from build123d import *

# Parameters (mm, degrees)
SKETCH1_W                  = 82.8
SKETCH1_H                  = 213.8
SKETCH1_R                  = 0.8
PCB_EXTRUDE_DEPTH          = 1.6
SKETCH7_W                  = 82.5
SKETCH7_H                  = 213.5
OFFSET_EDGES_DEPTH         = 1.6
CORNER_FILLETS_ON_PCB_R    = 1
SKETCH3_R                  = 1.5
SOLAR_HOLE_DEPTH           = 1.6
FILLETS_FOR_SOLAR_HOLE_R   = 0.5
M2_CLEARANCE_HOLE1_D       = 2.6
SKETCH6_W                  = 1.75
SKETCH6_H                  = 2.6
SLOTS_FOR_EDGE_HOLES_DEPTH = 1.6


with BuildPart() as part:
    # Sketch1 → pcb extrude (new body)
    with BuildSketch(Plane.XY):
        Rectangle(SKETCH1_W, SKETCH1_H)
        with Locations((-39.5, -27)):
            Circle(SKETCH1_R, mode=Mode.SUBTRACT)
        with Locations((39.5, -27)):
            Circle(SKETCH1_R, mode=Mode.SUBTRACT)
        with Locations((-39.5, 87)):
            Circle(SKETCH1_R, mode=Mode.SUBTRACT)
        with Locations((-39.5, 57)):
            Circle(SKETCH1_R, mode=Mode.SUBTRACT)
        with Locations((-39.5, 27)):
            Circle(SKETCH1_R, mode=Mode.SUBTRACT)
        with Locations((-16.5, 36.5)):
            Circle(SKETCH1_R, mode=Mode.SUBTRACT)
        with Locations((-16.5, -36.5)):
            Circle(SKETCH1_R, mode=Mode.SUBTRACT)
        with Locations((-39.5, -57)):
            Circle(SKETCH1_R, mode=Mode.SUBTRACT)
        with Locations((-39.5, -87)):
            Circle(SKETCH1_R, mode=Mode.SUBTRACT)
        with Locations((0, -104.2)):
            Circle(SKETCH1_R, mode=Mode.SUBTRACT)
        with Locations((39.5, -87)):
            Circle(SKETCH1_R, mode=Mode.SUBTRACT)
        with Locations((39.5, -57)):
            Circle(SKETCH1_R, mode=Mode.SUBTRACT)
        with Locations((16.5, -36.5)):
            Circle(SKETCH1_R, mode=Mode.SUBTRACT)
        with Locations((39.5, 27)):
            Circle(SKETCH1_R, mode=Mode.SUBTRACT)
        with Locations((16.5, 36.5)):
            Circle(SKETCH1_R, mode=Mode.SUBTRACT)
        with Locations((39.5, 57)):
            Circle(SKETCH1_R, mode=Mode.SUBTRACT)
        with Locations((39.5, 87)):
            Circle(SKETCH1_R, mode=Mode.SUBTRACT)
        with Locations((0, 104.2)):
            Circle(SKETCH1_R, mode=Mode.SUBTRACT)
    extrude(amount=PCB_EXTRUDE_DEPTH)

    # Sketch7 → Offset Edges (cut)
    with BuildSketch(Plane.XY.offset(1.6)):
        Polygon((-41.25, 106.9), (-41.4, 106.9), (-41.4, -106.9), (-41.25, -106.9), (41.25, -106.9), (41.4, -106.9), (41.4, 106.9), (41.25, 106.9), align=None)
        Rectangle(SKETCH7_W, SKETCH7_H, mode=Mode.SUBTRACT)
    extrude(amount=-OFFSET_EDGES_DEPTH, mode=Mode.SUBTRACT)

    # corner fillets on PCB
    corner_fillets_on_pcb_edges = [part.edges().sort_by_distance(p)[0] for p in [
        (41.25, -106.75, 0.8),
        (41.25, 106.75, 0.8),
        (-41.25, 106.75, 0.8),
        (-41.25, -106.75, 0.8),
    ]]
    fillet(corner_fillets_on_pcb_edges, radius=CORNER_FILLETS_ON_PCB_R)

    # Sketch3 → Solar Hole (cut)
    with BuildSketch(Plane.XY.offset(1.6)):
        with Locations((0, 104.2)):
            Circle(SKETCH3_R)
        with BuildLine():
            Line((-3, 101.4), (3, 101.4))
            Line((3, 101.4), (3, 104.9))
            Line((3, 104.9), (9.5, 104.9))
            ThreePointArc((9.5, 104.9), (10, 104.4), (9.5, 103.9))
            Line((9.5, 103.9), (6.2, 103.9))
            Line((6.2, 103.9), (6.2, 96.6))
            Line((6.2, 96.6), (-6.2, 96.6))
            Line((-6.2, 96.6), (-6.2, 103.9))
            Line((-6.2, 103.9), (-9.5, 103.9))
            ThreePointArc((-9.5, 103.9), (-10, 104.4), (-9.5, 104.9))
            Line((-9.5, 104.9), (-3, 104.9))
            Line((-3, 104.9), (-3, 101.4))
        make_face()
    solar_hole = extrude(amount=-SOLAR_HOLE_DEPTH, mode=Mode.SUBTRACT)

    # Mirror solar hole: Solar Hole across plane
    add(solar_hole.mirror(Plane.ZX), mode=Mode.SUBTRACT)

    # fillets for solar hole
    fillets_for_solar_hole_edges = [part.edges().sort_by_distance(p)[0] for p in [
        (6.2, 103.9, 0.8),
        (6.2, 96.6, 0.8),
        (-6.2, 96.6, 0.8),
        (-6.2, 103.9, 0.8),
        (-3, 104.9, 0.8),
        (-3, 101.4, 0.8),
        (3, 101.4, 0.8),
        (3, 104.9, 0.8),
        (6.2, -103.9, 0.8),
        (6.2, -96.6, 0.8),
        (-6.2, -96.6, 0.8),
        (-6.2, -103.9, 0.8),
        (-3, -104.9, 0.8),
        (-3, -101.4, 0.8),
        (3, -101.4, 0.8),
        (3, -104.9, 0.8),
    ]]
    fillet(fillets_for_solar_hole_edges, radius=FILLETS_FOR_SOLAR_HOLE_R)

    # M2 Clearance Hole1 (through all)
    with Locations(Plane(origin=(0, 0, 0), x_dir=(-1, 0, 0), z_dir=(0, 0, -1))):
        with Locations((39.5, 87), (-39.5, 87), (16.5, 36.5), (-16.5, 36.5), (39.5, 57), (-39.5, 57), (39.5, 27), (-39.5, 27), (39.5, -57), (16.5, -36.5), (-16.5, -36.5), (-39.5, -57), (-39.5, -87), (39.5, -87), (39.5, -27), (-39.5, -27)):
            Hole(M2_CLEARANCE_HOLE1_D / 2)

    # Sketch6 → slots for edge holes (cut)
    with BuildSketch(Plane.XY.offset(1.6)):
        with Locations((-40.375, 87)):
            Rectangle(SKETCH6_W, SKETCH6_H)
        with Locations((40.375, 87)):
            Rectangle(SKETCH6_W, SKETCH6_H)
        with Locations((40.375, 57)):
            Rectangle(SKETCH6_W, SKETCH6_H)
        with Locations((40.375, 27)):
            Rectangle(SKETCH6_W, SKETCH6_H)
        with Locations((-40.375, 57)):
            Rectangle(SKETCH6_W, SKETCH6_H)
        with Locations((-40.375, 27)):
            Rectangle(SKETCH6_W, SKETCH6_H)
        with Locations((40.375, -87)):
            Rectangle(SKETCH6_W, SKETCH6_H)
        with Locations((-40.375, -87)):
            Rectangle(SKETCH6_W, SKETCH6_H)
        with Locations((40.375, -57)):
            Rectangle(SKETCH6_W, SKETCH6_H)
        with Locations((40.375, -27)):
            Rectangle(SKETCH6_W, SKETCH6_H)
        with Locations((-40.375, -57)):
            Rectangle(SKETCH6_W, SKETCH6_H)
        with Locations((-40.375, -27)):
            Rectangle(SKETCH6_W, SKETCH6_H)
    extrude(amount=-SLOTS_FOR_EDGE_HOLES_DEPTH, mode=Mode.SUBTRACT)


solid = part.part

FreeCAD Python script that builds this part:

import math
import FreeCAD as App
import Part
import Sketcher


def edges_at(feature, points):
    """Names of the edges that pass closest to the given points."""
    edges = feature.Shape.Edges
    near = lambda p: min(range(len(edges)), key=lambda i: edges[i].distToShape(Part.Vertex(*p))[0])
    return sorted({f"Edge{near(p) + 1}" for p in points})

doc = App.newDocument("Part")
params = doc.addObject("Spreadsheet::Sheet", "Params")
for row, (alias, value) in enumerate([
    ("sketch1_diameter", "1.6 mm"),
    ("sketch1_width", "82.8 mm"),
    ("sketch1_height", "213.8 mm"),
    ("pad1_length", "1.6 mm"),
    ("sketch2_width", "82.8 mm"),
    ("sketch2_width2", "82.5 mm"),
    ("sketch2_height", "213.8 mm"),
    ("sketch2_height2", "213.5 mm"),
    ("pocket1_length", "1.6 mm"),
    ("fillet_radius", "1 mm"),
    ("sketch3_diameter", "3 mm"),
    ("sketch3_radius", "0.5 mm"),
    ("sketch3_width", "6 mm"),
    ("sketch3_width2", "6.5 mm"),
    ("sketch3_width3", "3.3 mm"),
    ("pocket2_length", "1.6 mm"),
    ("fillet2_radius", "0.5 mm"),
    ("sketch4_diameter", "2.6 mm"),
    ("hole_diameter", "2.6 mm"),
    ("sketch5_height", "2.6 mm"),
    ("sketch5_width", "1.75 mm"),
    ("pocket3_length", "1.6 mm"),
], start=1):
    params.set(f"A{row}", alias)
    params.set(f"B{row}", "=" + value)
    params.setAlias(f"B{row}", alias)

body = doc.addObject("PartDesign::Body", "Body")

sketch1 = body.newObject("Sketcher::SketchObject", "Sketch")
sketch1.AttachmentSupport = (doc.getObject("XY_Plane"), [""])
sketch1.MapMode = "FlatFace"
sketch1.addGeometry([
    Part.LineSegment(App.Vector(-41.4, 106.9, 0), App.Vector(-41.4, -106.9, 0)),
    Part.LineSegment(App.Vector(-41.4, -106.9, 0), App.Vector(41.4, -106.9, 0)),
    Part.LineSegment(App.Vector(41.4, -106.9, 0), App.Vector(41.4, 106.9, 0)),
    Part.LineSegment(App.Vector(41.4, 106.9, 0), App.Vector(-41.4, 106.9, 0)),
    Part.Circle(App.Vector(-39.5, -87, 0), App.Vector(0, 0, 1), 0.8),
    Part.Circle(App.Vector(-39.5, -57, 0), App.Vector(0, 0, 1), 0.8),
    Part.Circle(App.Vector(-39.5, -27, 0), App.Vector(0, 0, 1), 0.8),
    Part.Circle(App.Vector(-16.5, -36.5, 0), App.Vector(0, 0, 1), 0.8),
    Part.Circle(App.Vector(0, -104.2, 0), App.Vector(0, 0, 1), 0.8),
    Part.Circle(App.Vector(39.5, -87, 0), App.Vector(0, 0, 1), 0.8),
    Part.Circle(App.Vector(39.5, -57, 0), App.Vector(0, 0, 1), 0.8),
    Part.Circle(App.Vector(16.5, -36.5, 0), App.Vector(0, 0, 1), 0.8),
    Part.Circle(App.Vector(39.5, -27, 0), App.Vector(0, 0, 1), 0.8),
    Part.Circle(App.Vector(-39.5, 27, 0), App.Vector(0, 0, 1), 0.8),
    Part.Circle(App.Vector(-16.5, 36.5, 0), App.Vector(0, 0, 1), 0.8),
    Part.Circle(App.Vector(-39.5, 57, 0), App.Vector(0, 0, 1), 0.8),
    Part.Circle(App.Vector(-39.5, 87, 0), App.Vector(0, 0, 1), 0.8),
    Part.Circle(App.Vector(16.5, 36.5, 0), App.Vector(0, 0, 1), 0.8),
    Part.Circle(App.Vector(39.5, 27, 0), App.Vector(0, 0, 1), 0.8),
    Part.Circle(App.Vector(0, 104.2, 0), App.Vector(0, 0, 1), 0.8),
    Part.Circle(App.Vector(39.5, 57, 0), App.Vector(0, 0, 1), 0.8),
    Part.Circle(App.Vector(39.5, 87, 0), App.Vector(0, 0, 1), 0.8),
], False)
sketch1.addConstraint([
    Sketcher.Constraint("Coincident", 0, 2, 1, 1),
    Sketcher.Constraint("Coincident", 1, 2, 2, 1),
    Sketcher.Constraint("Coincident", 2, 2, 3, 1),
    Sketcher.Constraint("Coincident", 3, 2, 0, 1),
    Sketcher.Constraint("Vertical", 0),
    Sketcher.Constraint("Horizontal", 1),
    Sketcher.Constraint("Vertical", 2),
    Sketcher.Constraint("Horizontal", 3),
    Sketcher.Constraint("Equal", 4, 5),
    Sketcher.Constraint("Equal", 5, 6),
    Sketcher.Constraint("Equal", 6, 7),
    Sketcher.Constraint("Equal", 7, 8),
    Sketcher.Constraint("Equal", 8, 9),
    Sketcher.Constraint("Equal", 9, 10),
    Sketcher.Constraint("Equal", 10, 11),
    Sketcher.Constraint("Equal", 11, 12),
    Sketcher.Constraint("Equal", 12, 13),
    Sketcher.Constraint("Equal", 13, 14),
    Sketcher.Constraint("Equal", 14, 15),
    Sketcher.Constraint("Equal", 15, 16),
    Sketcher.Constraint("Equal", 16, 17),
    Sketcher.Constraint("Equal", 17, 18),
    Sketcher.Constraint("Equal", 18, 19),
    Sketcher.Constraint("Equal", 19, 20),
    Sketcher.Constraint("Equal", 20, 21),
    Sketcher.Constraint("Symmetric", 12, 3, 13, 3, -1, 1),
    Sketcher.Constraint("Symmetric", 11, 3, 14, 3, -1, 1),
    Sketcher.Constraint("Symmetric", 10, 3, 15, 3, -1, 1),
    Sketcher.Constraint("Symmetric", 9, 3, 16, 3, -1, 1),
    Sketcher.Constraint("Symmetric", 7, 3, 17, 3, -1, 1),
    Sketcher.Constraint("Symmetric", 6, 3, 18, 3, -1, 1),
    Sketcher.Constraint("Symmetric", 8, 3, 19, 3, -1, 1),
    Sketcher.Constraint("Symmetric", 5, 3, 20, 3, -1, 1),
    Sketcher.Constraint("Symmetric", 4, 3, 21, 3, -1, 1),
    Sketcher.Constraint("Symmetric", 0, 2, 2, 2, -1, 1),
    Sketcher.Constraint("Symmetric", 4, 3, 9, 3, -2),
    Sketcher.Constraint("Symmetric", 5, 3, 10, 3, -2),
    Sketcher.Constraint("Symmetric", 7, 3, 11, 3, -2),
    Sketcher.Constraint("Symmetric", 6, 3, 12, 3, -2),
    Sketcher.Constraint("PointOnObject", 8, 3, -2),
    Sketcher.Constraint("Vertical", 4, 3, 5, 3),
    Sketcher.Constraint("Vertical", 5, 3, 6, 3),
    Sketcher.Constraint("Diameter", 4, 1.6),
    Sketcher.Constraint("DistanceX", 1, 1, 1, 2, 82.8),
    Sketcher.Constraint("DistanceY", 0, 2, 0, 1, 213.8),
    Sketcher.Constraint("DistanceY", 4, 3, -1, 1, 87.0),
    Sketcher.Constraint("DistanceY", 5, 3, -1, 1, 57.0),
    Sketcher.Constraint("DistanceY", 6, 3, -1, 1, 27.0),
    Sketcher.Constraint("DistanceX", 6, 3, 7, 3, 23.0),
    Sketcher.Constraint("DistanceX", 7, 3, 9, 3, 56.0),
    Sketcher.Constraint("DistanceY", 7, 3, 14, 3, 73.0),
    Sketcher.Constraint("DistanceY", 8, 3, -1, 1, 104.2),
])
sketch1.setExpression("Constraints[42]", "Params.sketch1_diameter")
sketch1.setExpression("Constraints[43]", "Params.sketch1_width")
sketch1.setExpression("Constraints[44]", "Params.sketch1_height")
pad1 = body.newObject("PartDesign::Pad", "Pad")
pad1.Profile = sketch1
pad1.setExpression("Length", "Params.pad1_length")

sketch2 = body.newObject("Sketcher::SketchObject", "Sketch001")
sketch2.AttachmentSupport = (doc.getObject("XY_Plane"), [""])
sketch2.MapMode = "FlatFace"
sketch2.AttachmentOffset = App.Placement(App.Vector(0, 0, 1.6), App.Rotation())
sketch2.addGeometry([
    Part.LineSegment(App.Vector(-41.4, 106.9, 0), App.Vector(-41.4, -106.9, 0)),
    Part.LineSegment(App.Vector(-41.4, -106.9, 0), App.Vector(41.4, -106.9, 0)),
    Part.LineSegment(App.Vector(41.4, -106.9, 0), App.Vector(41.4, 106.9, 0)),
    Part.LineSegment(App.Vector(41.4, 106.9, 0), App.Vector(-41.4, 106.9, 0)),
    Part.LineSegment(App.Vector(41.25, -106.75, 0), App.Vector(-41.25, -106.75, 0)),
    Part.LineSegment(App.Vector(-41.25, -106.75, 0), App.Vector(-41.25, 106.75, 0)),
    Part.LineSegment(App.Vector(-41.25, 106.75, 0), App.Vector(41.25, 106.75, 0)),
    Part.LineSegment(App.Vector(41.25, 106.75, 0), App.Vector(41.25, -106.75, 0)),
], False)
sketch2.addConstraint([
    Sketcher.Constraint("Coincident", 0, 2, 1, 1),
    Sketcher.Constraint("Coincident", 1, 2, 2, 1),
    Sketcher.Constraint("Coincident", 2, 2, 3, 1),
    Sketcher.Constraint("Coincident", 3, 2, 0, 1),
    Sketcher.Constraint("Coincident", 4, 2, 5, 1),
    Sketcher.Constraint("Coincident", 5, 2, 6, 1),
    Sketcher.Constraint("Coincident", 6, 2, 7, 1),
    Sketcher.Constraint("Coincident", 7, 2, 4, 1),
    Sketcher.Constraint("Vertical", 0),
    Sketcher.Constraint("Horizontal", 1),
    Sketcher.Constraint("Vertical", 2),
    Sketcher.Constraint("Horizontal", 3),
    Sketcher.Constraint("Horizontal", 4),
    Sketcher.Constraint("Vertical", 5),
    Sketcher.Constraint("Horizontal", 6),
    Sketcher.Constraint("Vertical", 7),
    Sketcher.Constraint("Symmetric", 0, 2, 2, 2, -1, 1),
    Sketcher.Constraint("Symmetric", 4, 2, 6, 2, -1, 1),
    Sketcher.Constraint("DistanceX", 1, 1, 1, 2, 82.8),
    Sketcher.Constraint("DistanceX", 4, 2, 4, 1, 82.5),
    Sketcher.Constraint("DistanceY", 0, 2, 0, 1, 213.8),
    Sketcher.Constraint("DistanceY", 5, 1, 5, 2, 213.5),
])
sketch2.setExpression("Constraints[18]", "Params.sketch2_width")
sketch2.setExpression("Constraints[19]", "Params.sketch2_width2")
sketch2.setExpression("Constraints[20]", "Params.sketch2_height")
sketch2.setExpression("Constraints[21]", "Params.sketch2_height2")
pocket1 = body.newObject("PartDesign::Pocket", "Pocket")
pocket1.Profile = sketch2
pocket1.setExpression("Length", "Params.pocket1_length")
doc.recompute()

fillet = body.newObject("PartDesign::Fillet", "Fillet")
fillet.Base = (pocket1, edges_at(pocket1, [
    (41.25, -106.75, 0.8),
    (41.25, 106.75, 0.8),
    (-41.25, 106.75, 0.8),
    (-41.25, -106.75, 0.8),
]))
fillet.setExpression("Radius", "Params.fillet_radius")

sketch3 = body.newObject("Sketcher::SketchObject", "Sketch002")
sketch3.AttachmentSupport = (doc.getObject("XY_Plane"), [""])
sketch3.MapMode = "FlatFace"
sketch3.AttachmentOffset = App.Placement(App.Vector(0, 0, 1.6), App.Rotation())
sketch3.addGeometry([
    Part.Circle(App.Vector(0, 104.2, 0), App.Vector(0, 0, 1), 1.5),
    Part.LineSegment(App.Vector(3, 101.4, 0), App.Vector(-3, 101.4, 0)),
    Part.LineSegment(App.Vector(-3, 101.4, 0), App.Vector(-3, 104.9, 0)),
    Part.LineSegment(App.Vector(-3, 104.9, 0), App.Vector(-9.5, 104.9, 0)),
    Part.ArcOfCircle(Part.Circle(App.Vector(-9.5, 104.4, 0), App.Vector(0, 0, 1), 0.5), math.radians(90), math.radians(270)),
    Part.LineSegment(App.Vector(-9.5, 103.9, 0), App.Vector(-6.2, 103.9, 0)),
    Part.LineSegment(App.Vector(-6.2, 103.9, 0), App.Vector(-6.2, 96.6, 0)),
    Part.LineSegment(App.Vector(-6.2, 96.6, 0), App.Vector(6.2, 96.6, 0)),
    Part.LineSegment(App.Vector(6.2, 96.6, 0), App.Vector(6.2, 103.9, 0)),
    Part.LineSegment(App.Vector(6.2, 103.9, 0), App.Vector(9.5, 103.9, 0)),
    Part.ArcOfCircle(Part.Circle(App.Vector(9.5, 104.4, 0), App.Vector(0, 0, 1), 0.5), math.radians(-90), math.radians(90)),
    Part.LineSegment(App.Vector(9.5, 104.9, 0), App.Vector(3, 104.9, 0)),
    Part.LineSegment(App.Vector(3, 104.9, 0), App.Vector(3, 101.4, 0)),
], False)
sketch3.addConstraint([
    Sketcher.Constraint("Coincident", 1, 2, 2, 1),
    Sketcher.Constraint("Coincident", 2, 2, 3, 1),
    Sketcher.Constraint("Tangent", 3, 2, 4, 1),
    Sketcher.Constraint("Tangent", 4, 2, 5, 1),
    Sketcher.Constraint("Coincident", 5, 2, 6, 1),
    Sketcher.Constraint("Coincident", 6, 2, 7, 1),
    Sketcher.Constraint("Coincident", 7, 2, 8, 1),
    Sketcher.Constraint("Coincident", 8, 2, 9, 1),
    Sketcher.Constraint("Tangent", 9, 2, 10, 1),
    Sketcher.Constraint("Tangent", 10, 2, 11, 1),
    Sketcher.Constraint("Coincident", 11, 2, 12, 1),
    Sketcher.Constraint("Coincident", 12, 2, 1, 1),
    Sketcher.Constraint("Horizontal", 1),
    Sketcher.Constraint("Vertical", 2),
    Sketcher.Constraint("Horizontal", 3),
    Sketcher.Constraint("Horizontal", 5),
    Sketcher.Constraint("Vertical", 6),
    Sketcher.Constraint("Horizontal", 7),
    Sketcher.Constraint("Vertical", 8),
    Sketcher.Constraint("Horizontal", 9),
    Sketcher.Constraint("Horizontal", 11),
    Sketcher.Constraint("Vertical", 12),
    Sketcher.Constraint("Equal", 4, 10),
    Sketcher.Constraint("Symmetric", 4, 3, 10, 3, -2),
    Sketcher.Constraint("PointOnObject", 0, 3, -2),
    Sketcher.Constraint("Equal", 5, 9),
    Sketcher.Constraint("Equal", 3, 11),
    Sketcher.Constraint("Diameter", 0, 3.0),
    Sketcher.Constraint("Radius", 4, 0.5),
    Sketcher.Constraint("DistanceX", 1, 2, 1, 1, 6.0),
    Sketcher.Constraint("DistanceX", 3, 2, 3, 1, 6.5),
    Sketcher.Constraint("DistanceX", 5, 1, 5, 2, 3.3),
    Sketcher.Constraint("DistanceY", 2, 1, 2, 2, 3.5),
    Sketcher.Constraint("DistanceY", 6, 2, 6, 1, 7.3),
    Sketcher.Constraint("DistanceY", -1, 1, 0, 3, 104.2),
    Sketcher.Constraint("DistanceY", -1, 1, 4, 3, 104.4),
])
sketch3.setExpression("Constraints[27]", "Params.sketch3_diameter")
sketch3.setExpression("Constraints[28]", "Params.sketch3_radius")
sketch3.setExpression("Constraints[29]", "Params.sketch3_width")
sketch3.setExpression("Constraints[30]", "Params.sketch3_width2")
sketch3.setExpression("Constraints[31]", "Params.sketch3_width3")
pocket2 = body.newObject("PartDesign::Pocket", "Pocket001")
pocket2.Profile = sketch3
pocket2.setExpression("Length", "Params.pocket2_length")
doc.recompute()

mirrored = body.newObject("PartDesign::Mirrored", "Mirrored")
mirrored.Originals = [pocket2]
mirrored.MirrorPlane = (doc.getObject("XZ_Plane"), [""])
body.Tip = mirrored
doc.recompute()

fillet2 = body.newObject("PartDesign::Fillet", "Fillet001")
fillet2.Base = (mirrored, edges_at(mirrored, [
    (6.2, 103.9, 0.8),
    (6.2, 96.6, 0.8),
    (-6.2, 96.6, 0.8),
    (-6.2, 103.9, 0.8),
    (-3, 104.9, 0.8),
    (-3, 101.4, 0.8),
    (3, 101.4, 0.8),
    (3, 104.9, 0.8),
    (6.2, -103.9, 0.8),
    (6.2, -96.6, 0.8),
    (-6.2, -96.6, 0.8),
    (-6.2, -103.9, 0.8),
    (-3, -104.9, 0.8),
    (-3, -101.4, 0.8),
    (3, -101.4, 0.8),
    (3, -104.9, 0.8),
]))
fillet2.setExpression("Radius", "Params.fillet2_radius")

sketch4 = body.newObject("Sketcher::SketchObject", "Sketch003")
sketch4.AttachmentSupport = (doc.getObject("XY_Plane"), [""])
sketch4.MapMode = "FlatFace"
sketch4.addGeometry([
    Part.Circle(App.Vector(-39.5, 87, 0), App.Vector(0, 0, 1), 1.3),
    Part.Circle(App.Vector(39.5, 87, 0), App.Vector(0, 0, 1), 1.3),
    Part.Circle(App.Vector(-16.5, 36.5, 0), App.Vector(0, 0, 1), 1.3),
    Part.Circle(App.Vector(16.5, 36.5, 0), App.Vector(0, 0, 1), 1.3),
    Part.Circle(App.Vector(-39.5, 57, 0), App.Vector(0, 0, 1), 1.3),
    Part.Circle(App.Vector(39.5, 57, 0), App.Vector(0, 0, 1), 1.3),
    Part.Circle(App.Vector(-39.5, 27, 0), App.Vector(0, 0, 1), 1.3),
    Part.Circle(App.Vector(39.5, 27, 0), App.Vector(0, 0, 1), 1.3),
    Part.Circle(App.Vector(-39.5, -57, 0), App.Vector(0, 0, 1), 1.3),
    Part.Circle(App.Vector(-16.5, -36.5, 0), App.Vector(0, 0, 1), 1.3),
    Part.Circle(App.Vector(16.5, -36.5, 0), App.Vector(0, 0, 1), 1.3),
    Part.Circle(App.Vector(39.5, -57, 0), App.Vector(0, 0, 1), 1.3),
    Part.Circle(App.Vector(39.5, -87, 0), App.Vector(0, 0, 1), 1.3),
    Part.Circle(App.Vector(-39.5, -87, 0), App.Vector(0, 0, 1), 1.3),
    Part.Circle(App.Vector(-39.5, -27, 0), App.Vector(0, 0, 1), 1.3),
    Part.Circle(App.Vector(39.5, -27, 0), App.Vector(0, 0, 1), 1.3),
], False)
sketch4.addConstraint([
    Sketcher.Constraint("Equal", 0, 1),
    Sketcher.Constraint("Equal", 1, 2),
    Sketcher.Constraint("Equal", 2, 3),
    Sketcher.Constraint("Equal", 3, 4),
    Sketcher.Constraint("Equal", 4, 5),
    Sketcher.Constraint("Equal", 5, 6),
    Sketcher.Constraint("Equal", 6, 7),
    Sketcher.Constraint("Equal", 7, 8),
    Sketcher.Constraint("Equal", 8, 9),
    Sketcher.Constraint("Equal", 9, 10),
    Sketcher.Constraint("Equal", 10, 11),
    Sketcher.Constraint("Equal", 11, 12),
    Sketcher.Constraint("Equal", 12, 13),
    Sketcher.Constraint("Equal", 13, 14),
    Sketcher.Constraint("Equal", 14, 15),
    Sketcher.Constraint("Symmetric", 5, 3, 8, 3, -1, 1),
    Sketcher.Constraint("Symmetric", 3, 3, 9, 3, -1, 1),
    Sketcher.Constraint("Symmetric", 2, 3, 10, 3, -1, 1),
    Sketcher.Constraint("Symmetric", 4, 3, 11, 3, -1, 1),
    Sketcher.Constraint("Symmetric", 0, 3, 12, 3, -1, 1),
    Sketcher.Constraint("Symmetric", 1, 3, 13, 3, -1, 1),
    Sketcher.Constraint("Symmetric", 7, 3, 14, 3, -1, 1),
    Sketcher.Constraint("Symmetric", 6, 3, 15, 3, -1, 1),
    Sketcher.Constraint("Symmetric", 0, 3, 1, 3, -2),
    Sketcher.Constraint("Symmetric", 2, 3, 3, 3, -2),
    Sketcher.Constraint("Symmetric", 4, 3, 5, 3, -2),
    Sketcher.Constraint("Symmetric", 6, 3, 7, 3, -2),
    Sketcher.Constraint("Vertical", 0, 3, 4, 3),
    Sketcher.Constraint("Vertical", 4, 3, 6, 3),
    Sketcher.Constraint("Diameter", 0, 2.6),
    Sketcher.Constraint("DistanceY", -1, 1, 0, 3, 87.0),
    Sketcher.Constraint("DistanceY", -1, 1, 4, 3, 57.0),
    Sketcher.Constraint("DistanceY", -1, 1, 6, 3, 27.0),
    Sketcher.Constraint("DistanceX", 0, 3, 1, 3, 79.0),
    Sketcher.Constraint("DistanceX", 0, 3, 2, 3, 23.0),
    Sketcher.Constraint("DistanceY", 9, 3, 2, 3, 73.0),
])
sketch4.setExpression("Constraints[29]", "Params.sketch4_diameter")
doc.recompute()
hole = body.newObject("PartDesign::Hole", "Hole")
hole.Profile = sketch4
hole.ThreadType = "None"
hole.setExpression("Diameter", "Params.hole_diameter")
hole.DepthType = "ThroughAll"
hole.Reversed = True

sketch5 = body.newObject("Sketcher::SketchObject", "Sketch004")
sketch5.AttachmentSupport = (doc.getObject("XY_Plane"), [""])
sketch5.MapMode = "FlatFace"
sketch5.AttachmentOffset = App.Placement(App.Vector(0, 0, 1.6), App.Rotation())
sketch5.addGeometry([
    Part.LineSegment(App.Vector(-41.25, 88.3, 0), App.Vector(-41.25, 85.7, 0)),
    Part.LineSegment(App.Vector(-41.25, 85.7, 0), App.Vector(-39.5, 85.7, 0)),
    Part.LineSegment(App.Vector(-39.5, 85.7, 0), App.Vector(-39.5, 88.3, 0)),
    Part.LineSegment(App.Vector(-39.5, 88.3, 0), App.Vector(-41.25, 88.3, 0)),
    Part.LineSegment(App.Vector(39.5, 88.3, 0), App.Vector(39.5, 85.7, 0)),
    Part.LineSegment(App.Vector(39.5, 85.7, 0), App.Vector(41.25, 85.7, 0)),
    Part.LineSegment(App.Vector(41.25, 85.7, 0), App.Vector(41.25, 88.3, 0)),
    Part.LineSegment(App.Vector(41.25, 88.3, 0), App.Vector(39.5, 88.3, 0)),
    Part.LineSegment(App.Vector(39.5, 58.3, 0), App.Vector(39.5, 55.7, 0)),
    Part.LineSegment(App.Vector(39.5, 55.7, 0), App.Vector(41.25, 55.7, 0)),
    Part.LineSegment(App.Vector(41.25, 55.7, 0), App.Vector(41.25, 58.3, 0)),
    Part.LineSegment(App.Vector(41.25, 58.3, 0), App.Vector(39.5, 58.3, 0)),
    Part.LineSegment(App.Vector(39.5, 28.3, 0), App.Vector(39.5, 25.7, 0)),
    Part.LineSegment(App.Vector(39.5, 25.7, 0), App.Vector(41.25, 25.7, 0)),
    Part.LineSegment(App.Vector(41.25, 25.7, 0), App.Vector(41.25, 28.3, 0)),
    Part.LineSegment(App.Vector(41.25, 28.3, 0), App.Vector(39.5, 28.3, 0)),
    Part.LineSegment(App.Vector(-41.25, 58.3, 0), App.Vector(-41.25, 55.7, 0)),
    Part.LineSegment(App.Vector(-41.25, 55.7, 0), App.Vector(-39.5, 55.7, 0)),
    Part.LineSegment(App.Vector(-39.5, 55.7, 0), App.Vector(-39.5, 58.3, 0)),
    Part.LineSegment(App.Vector(-39.5, 58.3, 0), App.Vector(-41.25, 58.3, 0)),
    Part.LineSegment(App.Vector(-41.25, 28.3, 0), App.Vector(-41.25, 25.7, 0)),
    Part.LineSegment(App.Vector(-41.25, 25.7, 0), App.Vector(-39.5, 25.7, 0)),
    Part.LineSegment(App.Vector(-39.5, 25.7, 0), App.Vector(-39.5, 28.3, 0)),
    Part.LineSegment(App.Vector(-39.5, 28.3, 0), App.Vector(-41.25, 28.3, 0)),
    Part.LineSegment(App.Vector(39.5, -85.7, 0), App.Vector(39.5, -88.3, 0)),
    Part.LineSegment(App.Vector(39.5, -88.3, 0), App.Vector(41.25, -88.3, 0)),
    Part.LineSegment(App.Vector(41.25, -88.3, 0), App.Vector(41.25, -85.7, 0)),
    Part.LineSegment(App.Vector(41.25, -85.7, 0), App.Vector(39.5, -85.7, 0)),
    Part.LineSegment(App.Vector(-41.25, -85.7, 0), App.Vector(-41.25, -88.3, 0)),
    Part.LineSegment(App.Vector(-41.25, -88.3, 0), App.Vector(-39.5, -88.3, 0)),
    Part.LineSegment(App.Vector(-39.5, -88.3, 0), App.Vector(-39.5, -85.7, 0)),
    Part.LineSegment(App.Vector(-39.5, -85.7, 0), App.Vector(-41.25, -85.7, 0)),
    Part.LineSegment(App.Vector(39.5, -55.7, 0), App.Vector(39.5, -58.3, 0)),
    Part.LineSegment(App.Vector(39.5, -58.3, 0), App.Vector(41.25, -58.3, 0)),
    Part.LineSegment(App.Vector(41.25, -58.3, 0), App.Vector(41.25, -55.7, 0)),
    Part.LineSegment(App.Vector(41.25, -55.7, 0), App.Vector(39.5, -55.7, 0)),
    Part.LineSegment(App.Vector(39.5, -25.7, 0), App.Vector(39.5, -28.3, 0)),
    Part.LineSegment(App.Vector(39.5, -28.3, 0), App.Vector(41.25, -28.3, 0)),
    Part.LineSegment(App.Vector(41.25, -28.3, 0), App.Vector(41.25, -25.7, 0)),
    Part.LineSegment(App.Vector(41.25, -25.7, 0), App.Vector(39.5, -25.7, 0)),
    Part.LineSegment(App.Vector(-41.25, -55.7, 0), App.Vector(-41.25, -58.3, 0)),
    Part.LineSegment(App.Vector(-41.25, -58.3, 0), App.Vector(-39.5, -58.3, 0)),
    Part.LineSegment(App.Vector(-39.5, -58.3, 0), App.Vector(-39.5, -55.7, 0)),
    Part.LineSegment(App.Vector(-39.5, -55.7, 0), App.Vector(-41.25, -55.7, 0)),
    Part.LineSegment(App.Vector(-41.25, -25.7, 0), App.Vector(-41.25, -28.3, 0)),
    Part.LineSegment(App.Vector(-41.25, -28.3, 0), App.Vector(-39.5, -28.3, 0)),
    Part.LineSegment(App.Vector(-39.5, -28.3, 0), App.Vector(-39.5, -25.7, 0)),
    Part.LineSegment(App.Vector(-39.5, -25.7, 0), App.Vector(-41.25, -25.7, 0)),
], False)
sketch5.addConstraint([
    Sketcher.Constraint("Coincident", 0, 2, 1, 1),
    Sketcher.Constraint("Coincident", 1, 2, 2, 1),
    Sketcher.Constraint("Coincident", 2, 2, 3, 1),
    Sketcher.Constraint("Coincident", 3, 2, 0, 1),
    Sketcher.Constraint("Coincident", 4, 2, 5, 1),
    Sketcher.Constraint("Coincident", 5, 2, 6, 1),
    Sketcher.Constraint("Coincident", 6, 2, 7, 1),
    Sketcher.Constraint("Coincident", 7, 2, 4, 1),
    Sketcher.Constraint("Coincident", 8, 2, 9, 1),
    Sketcher.Constraint("Coincident", 9, 2, 10, 1),
    Sketcher.Constraint("Coincident", 10, 2, 11, 1),
    Sketcher.Constraint("Coincident", 11, 2, 8, 1),
    Sketcher.Constraint("Coincident", 12, 2, 13, 1),
    Sketcher.Constraint("Coincident", 13, 2, 14, 1),
    Sketcher.Constraint("Coincident", 14, 2, 15, 1),
    Sketcher.Constraint("Coincident", 15, 2, 12, 1),
    Sketcher.Constraint("Coincident", 16, 2, 17, 1),
    Sketcher.Constraint("Coincident", 17, 2, 18, 1),
    Sketcher.Constraint("Coincident", 18, 2, 19, 1),
    Sketcher.Constraint("Coincident", 19, 2, 16, 1),
    Sketcher.Constraint("Coincident", 20, 2, 21, 1),
    Sketcher.Constraint("Coincident", 21, 2, 22, 1),
    Sketcher.Constraint("Coincident", 22, 2, 23, 1),
    Sketcher.Constraint("Coincident", 23, 2, 20, 1),
    Sketcher.Constraint("Coincident", 24, 2, 25, 1),
    Sketcher.Constraint("Coincident", 25, 2, 26, 1),
    Sketcher.Constraint("Coincident", 26, 2, 27, 1),
    Sketcher.Constraint("Coincident", 27, 2, 24, 1),
    Sketcher.Constraint("Coincident", 28, 2, 29, 1),
    Sketcher.Constraint("Coincident", 29, 2, 30, 1),
    Sketcher.Constraint("Coincident", 30, 2, 31, 1),
    Sketcher.Constraint("Coincident", 31, 2, 28, 1),
    Sketcher.Constraint("Coincident", 32, 2, 33, 1),
    Sketcher.Constraint("Coincident", 33, 2, 34, 1),
    Sketcher.Constraint("Coincident", 34, 2, 35, 1),
    Sketcher.Constraint("Coincident", 35, 2, 32, 1),
    Sketcher.Constraint("Coincident", 36, 2, 37, 1),
    Sketcher.Constraint("Coincident", 37, 2, 38, 1),
    Sketcher.Constraint("Coincident", 38, 2, 39, 1),
    Sketcher.Constraint("Coincident", 39, 2, 36, 1),
    Sketcher.Constraint("Coincident", 40, 2, 41, 1),
    Sketcher.Constraint("Coincident", 41, 2, 42, 1),
    Sketcher.Constraint("Coincident", 42, 2, 43, 1),
    Sketcher.Constraint("Coincident", 43, 2, 40, 1),
    Sketcher.Constraint("Coincident", 44, 2, 45, 1),
    Sketcher.Constraint("Coincident", 45, 2, 46, 1),
    Sketcher.Constraint("Coincident", 46, 2, 47, 1),
    Sketcher.Constraint("Coincident", 47, 2, 44, 1),
    Sketcher.Constraint("Vertical", 0),
    Sketcher.Constraint("Horizontal", 1),
    Sketcher.Constraint("Vertical", 2),
    Sketcher.Constraint("Horizontal", 3),
    Sketcher.Constraint("Vertical", 4),
    Sketcher.Constraint("Horizontal", 5),
    Sketcher.Constraint("Vertical", 6),
    Sketcher.Constraint("Horizontal", 7),
    Sketcher.Constraint("Vertical", 8),
    Sketcher.Constraint("Horizontal", 9),
    Sketcher.Constraint("Vertical", 10),
    Sketcher.Constraint("Horizontal", 11),
    Sketcher.Constraint("Vertical", 12),
    Sketcher.Constraint("Horizontal", 13),
    Sketcher.Constraint("Vertical", 14),
    Sketcher.Constraint("Horizontal", 15),
    Sketcher.Constraint("Vertical", 16),
    Sketcher.Constraint("Horizontal", 17),
    Sketcher.Constraint("Vertical", 18),
    Sketcher.Constraint("Horizontal", 19),
    Sketcher.Constraint("Vertical", 20),
    Sketcher.Constraint("Horizontal", 21),
    Sketcher.Constraint("Vertical", 22),
    Sketcher.Constraint("Horizontal", 23),
    Sketcher.Constraint("Vertical", 24),
    Sketcher.Constraint("Horizontal", 25),
    Sketcher.Constraint("Vertical", 26),
    Sketcher.Constraint("Horizontal", 27),
    Sketcher.Constraint("Vertical", 28),
    Sketcher.Constraint("Horizontal", 29),
    Sketcher.Constraint("Vertical", 30),
    Sketcher.Constraint("Horizontal", 31),
    Sketcher.Constraint("Vertical", 32),
    Sketcher.Constraint("Horizontal", 33),
    Sketcher.Constraint("Vertical", 34),
    Sketcher.Constraint("Horizontal", 35),
    Sketcher.Constraint("Vertical", 36),
    Sketcher.Constraint("Horizontal", 37),
    Sketcher.Constraint("Vertical", 38),
    Sketcher.Constraint("Horizontal", 39),
    Sketcher.Constraint("Vertical", 40),
    Sketcher.Constraint("Horizontal", 41),
    Sketcher.Constraint("Vertical", 42),
    Sketcher.Constraint("Horizontal", 43),
    Sketcher.Constraint("Vertical", 44),
    Sketcher.Constraint("Horizontal", 45),
    Sketcher.Constraint("Vertical", 46),
    Sketcher.Constraint("Horizontal", 47),
    Sketcher.Constraint("Symmetric", 2, 2, 24, 2, -1, 1),
    Sketcher.Constraint("Symmetric", 0, 2, 26, 2, -1, 1),
    Sketcher.Constraint("Symmetric", 6, 2, 28, 2, -1, 1),
    Sketcher.Constraint("Symmetric", 4, 2, 30, 2, -1, 1),
    Sketcher.Constraint("Symmetric", 18, 2, 32, 2, -1, 1),
    Sketcher.Constraint("Symmetric", 16, 2, 34, 2, -1, 1),
    Sketcher.Constraint("Symmetric", 22, 2, 36, 2, -1, 1),
    Sketcher.Constraint("Symmetric", 20, 2, 38, 2, -1, 1),
    Sketcher.Constraint("Symmetric", 10, 2, 40, 2, -1, 1),
    Sketcher.Constraint("Symmetric", 8, 2, 42, 2, -1, 1),
    Sketcher.Constraint("Symmetric", 14, 2, 44, 2, -1, 1),
    Sketcher.Constraint("Symmetric", 12, 2, 46, 2, -1, 1),
    Sketcher.Constraint("Symmetric", 1, 2, 4, 2, -2),
    Sketcher.Constraint("Symmetric", 3, 2, 6, 2, -2),
    Sketcher.Constraint("Symmetric", 9, 2, 16, 2, -2),
    Sketcher.Constraint("Symmetric", 11, 2, 18, 2, -2),
    Sketcher.Constraint("Symmetric", 13, 2, 20, 2, -2),
    Sketcher.Constraint("Symmetric", 15, 2, 22, 2, -2),
    Sketcher.Constraint("Vertical", 7, 2, 8, 2),
    Sketcher.Constraint("Vertical", 6, 2, 9, 2),
    Sketcher.Constraint("Vertical", 11, 2, 12, 2),
    Sketcher.Constraint("Vertical", 10, 2, 13, 2),
    Sketcher.Constraint("Equal", 6, 8),
    Sketcher.Constraint("Equal", 10, 12),
    Sketcher.Constraint("DistanceY", 0, 2, 0, 1, 2.6),
    Sketcher.Constraint("DistanceX", 1, 2, 4, 2, 79.0),
    Sketcher.Constraint("DistanceY", 8, 2, 4, 2, 30.0),
    Sketcher.Constraint("DistanceY", 12, 2, 8, 2, 30.0),
    Sketcher.Constraint("DistanceY", 24, 2, 12, 2, 114.0),
    Sketcher.Constraint("DistanceX", 1, 1, 1, 2, 1.75),
])
sketch5.setExpression("Constraints[120]", "Params.sketch5_height")
sketch5.setExpression("Constraints[125]", "Params.sketch5_width")
pocket3 = body.newObject("PartDesign::Pocket", "Pocket002")
pocket3.Profile = sketch5
pocket3.setExpression("Length", "Params.pocket3_length")

doc.recompute()
